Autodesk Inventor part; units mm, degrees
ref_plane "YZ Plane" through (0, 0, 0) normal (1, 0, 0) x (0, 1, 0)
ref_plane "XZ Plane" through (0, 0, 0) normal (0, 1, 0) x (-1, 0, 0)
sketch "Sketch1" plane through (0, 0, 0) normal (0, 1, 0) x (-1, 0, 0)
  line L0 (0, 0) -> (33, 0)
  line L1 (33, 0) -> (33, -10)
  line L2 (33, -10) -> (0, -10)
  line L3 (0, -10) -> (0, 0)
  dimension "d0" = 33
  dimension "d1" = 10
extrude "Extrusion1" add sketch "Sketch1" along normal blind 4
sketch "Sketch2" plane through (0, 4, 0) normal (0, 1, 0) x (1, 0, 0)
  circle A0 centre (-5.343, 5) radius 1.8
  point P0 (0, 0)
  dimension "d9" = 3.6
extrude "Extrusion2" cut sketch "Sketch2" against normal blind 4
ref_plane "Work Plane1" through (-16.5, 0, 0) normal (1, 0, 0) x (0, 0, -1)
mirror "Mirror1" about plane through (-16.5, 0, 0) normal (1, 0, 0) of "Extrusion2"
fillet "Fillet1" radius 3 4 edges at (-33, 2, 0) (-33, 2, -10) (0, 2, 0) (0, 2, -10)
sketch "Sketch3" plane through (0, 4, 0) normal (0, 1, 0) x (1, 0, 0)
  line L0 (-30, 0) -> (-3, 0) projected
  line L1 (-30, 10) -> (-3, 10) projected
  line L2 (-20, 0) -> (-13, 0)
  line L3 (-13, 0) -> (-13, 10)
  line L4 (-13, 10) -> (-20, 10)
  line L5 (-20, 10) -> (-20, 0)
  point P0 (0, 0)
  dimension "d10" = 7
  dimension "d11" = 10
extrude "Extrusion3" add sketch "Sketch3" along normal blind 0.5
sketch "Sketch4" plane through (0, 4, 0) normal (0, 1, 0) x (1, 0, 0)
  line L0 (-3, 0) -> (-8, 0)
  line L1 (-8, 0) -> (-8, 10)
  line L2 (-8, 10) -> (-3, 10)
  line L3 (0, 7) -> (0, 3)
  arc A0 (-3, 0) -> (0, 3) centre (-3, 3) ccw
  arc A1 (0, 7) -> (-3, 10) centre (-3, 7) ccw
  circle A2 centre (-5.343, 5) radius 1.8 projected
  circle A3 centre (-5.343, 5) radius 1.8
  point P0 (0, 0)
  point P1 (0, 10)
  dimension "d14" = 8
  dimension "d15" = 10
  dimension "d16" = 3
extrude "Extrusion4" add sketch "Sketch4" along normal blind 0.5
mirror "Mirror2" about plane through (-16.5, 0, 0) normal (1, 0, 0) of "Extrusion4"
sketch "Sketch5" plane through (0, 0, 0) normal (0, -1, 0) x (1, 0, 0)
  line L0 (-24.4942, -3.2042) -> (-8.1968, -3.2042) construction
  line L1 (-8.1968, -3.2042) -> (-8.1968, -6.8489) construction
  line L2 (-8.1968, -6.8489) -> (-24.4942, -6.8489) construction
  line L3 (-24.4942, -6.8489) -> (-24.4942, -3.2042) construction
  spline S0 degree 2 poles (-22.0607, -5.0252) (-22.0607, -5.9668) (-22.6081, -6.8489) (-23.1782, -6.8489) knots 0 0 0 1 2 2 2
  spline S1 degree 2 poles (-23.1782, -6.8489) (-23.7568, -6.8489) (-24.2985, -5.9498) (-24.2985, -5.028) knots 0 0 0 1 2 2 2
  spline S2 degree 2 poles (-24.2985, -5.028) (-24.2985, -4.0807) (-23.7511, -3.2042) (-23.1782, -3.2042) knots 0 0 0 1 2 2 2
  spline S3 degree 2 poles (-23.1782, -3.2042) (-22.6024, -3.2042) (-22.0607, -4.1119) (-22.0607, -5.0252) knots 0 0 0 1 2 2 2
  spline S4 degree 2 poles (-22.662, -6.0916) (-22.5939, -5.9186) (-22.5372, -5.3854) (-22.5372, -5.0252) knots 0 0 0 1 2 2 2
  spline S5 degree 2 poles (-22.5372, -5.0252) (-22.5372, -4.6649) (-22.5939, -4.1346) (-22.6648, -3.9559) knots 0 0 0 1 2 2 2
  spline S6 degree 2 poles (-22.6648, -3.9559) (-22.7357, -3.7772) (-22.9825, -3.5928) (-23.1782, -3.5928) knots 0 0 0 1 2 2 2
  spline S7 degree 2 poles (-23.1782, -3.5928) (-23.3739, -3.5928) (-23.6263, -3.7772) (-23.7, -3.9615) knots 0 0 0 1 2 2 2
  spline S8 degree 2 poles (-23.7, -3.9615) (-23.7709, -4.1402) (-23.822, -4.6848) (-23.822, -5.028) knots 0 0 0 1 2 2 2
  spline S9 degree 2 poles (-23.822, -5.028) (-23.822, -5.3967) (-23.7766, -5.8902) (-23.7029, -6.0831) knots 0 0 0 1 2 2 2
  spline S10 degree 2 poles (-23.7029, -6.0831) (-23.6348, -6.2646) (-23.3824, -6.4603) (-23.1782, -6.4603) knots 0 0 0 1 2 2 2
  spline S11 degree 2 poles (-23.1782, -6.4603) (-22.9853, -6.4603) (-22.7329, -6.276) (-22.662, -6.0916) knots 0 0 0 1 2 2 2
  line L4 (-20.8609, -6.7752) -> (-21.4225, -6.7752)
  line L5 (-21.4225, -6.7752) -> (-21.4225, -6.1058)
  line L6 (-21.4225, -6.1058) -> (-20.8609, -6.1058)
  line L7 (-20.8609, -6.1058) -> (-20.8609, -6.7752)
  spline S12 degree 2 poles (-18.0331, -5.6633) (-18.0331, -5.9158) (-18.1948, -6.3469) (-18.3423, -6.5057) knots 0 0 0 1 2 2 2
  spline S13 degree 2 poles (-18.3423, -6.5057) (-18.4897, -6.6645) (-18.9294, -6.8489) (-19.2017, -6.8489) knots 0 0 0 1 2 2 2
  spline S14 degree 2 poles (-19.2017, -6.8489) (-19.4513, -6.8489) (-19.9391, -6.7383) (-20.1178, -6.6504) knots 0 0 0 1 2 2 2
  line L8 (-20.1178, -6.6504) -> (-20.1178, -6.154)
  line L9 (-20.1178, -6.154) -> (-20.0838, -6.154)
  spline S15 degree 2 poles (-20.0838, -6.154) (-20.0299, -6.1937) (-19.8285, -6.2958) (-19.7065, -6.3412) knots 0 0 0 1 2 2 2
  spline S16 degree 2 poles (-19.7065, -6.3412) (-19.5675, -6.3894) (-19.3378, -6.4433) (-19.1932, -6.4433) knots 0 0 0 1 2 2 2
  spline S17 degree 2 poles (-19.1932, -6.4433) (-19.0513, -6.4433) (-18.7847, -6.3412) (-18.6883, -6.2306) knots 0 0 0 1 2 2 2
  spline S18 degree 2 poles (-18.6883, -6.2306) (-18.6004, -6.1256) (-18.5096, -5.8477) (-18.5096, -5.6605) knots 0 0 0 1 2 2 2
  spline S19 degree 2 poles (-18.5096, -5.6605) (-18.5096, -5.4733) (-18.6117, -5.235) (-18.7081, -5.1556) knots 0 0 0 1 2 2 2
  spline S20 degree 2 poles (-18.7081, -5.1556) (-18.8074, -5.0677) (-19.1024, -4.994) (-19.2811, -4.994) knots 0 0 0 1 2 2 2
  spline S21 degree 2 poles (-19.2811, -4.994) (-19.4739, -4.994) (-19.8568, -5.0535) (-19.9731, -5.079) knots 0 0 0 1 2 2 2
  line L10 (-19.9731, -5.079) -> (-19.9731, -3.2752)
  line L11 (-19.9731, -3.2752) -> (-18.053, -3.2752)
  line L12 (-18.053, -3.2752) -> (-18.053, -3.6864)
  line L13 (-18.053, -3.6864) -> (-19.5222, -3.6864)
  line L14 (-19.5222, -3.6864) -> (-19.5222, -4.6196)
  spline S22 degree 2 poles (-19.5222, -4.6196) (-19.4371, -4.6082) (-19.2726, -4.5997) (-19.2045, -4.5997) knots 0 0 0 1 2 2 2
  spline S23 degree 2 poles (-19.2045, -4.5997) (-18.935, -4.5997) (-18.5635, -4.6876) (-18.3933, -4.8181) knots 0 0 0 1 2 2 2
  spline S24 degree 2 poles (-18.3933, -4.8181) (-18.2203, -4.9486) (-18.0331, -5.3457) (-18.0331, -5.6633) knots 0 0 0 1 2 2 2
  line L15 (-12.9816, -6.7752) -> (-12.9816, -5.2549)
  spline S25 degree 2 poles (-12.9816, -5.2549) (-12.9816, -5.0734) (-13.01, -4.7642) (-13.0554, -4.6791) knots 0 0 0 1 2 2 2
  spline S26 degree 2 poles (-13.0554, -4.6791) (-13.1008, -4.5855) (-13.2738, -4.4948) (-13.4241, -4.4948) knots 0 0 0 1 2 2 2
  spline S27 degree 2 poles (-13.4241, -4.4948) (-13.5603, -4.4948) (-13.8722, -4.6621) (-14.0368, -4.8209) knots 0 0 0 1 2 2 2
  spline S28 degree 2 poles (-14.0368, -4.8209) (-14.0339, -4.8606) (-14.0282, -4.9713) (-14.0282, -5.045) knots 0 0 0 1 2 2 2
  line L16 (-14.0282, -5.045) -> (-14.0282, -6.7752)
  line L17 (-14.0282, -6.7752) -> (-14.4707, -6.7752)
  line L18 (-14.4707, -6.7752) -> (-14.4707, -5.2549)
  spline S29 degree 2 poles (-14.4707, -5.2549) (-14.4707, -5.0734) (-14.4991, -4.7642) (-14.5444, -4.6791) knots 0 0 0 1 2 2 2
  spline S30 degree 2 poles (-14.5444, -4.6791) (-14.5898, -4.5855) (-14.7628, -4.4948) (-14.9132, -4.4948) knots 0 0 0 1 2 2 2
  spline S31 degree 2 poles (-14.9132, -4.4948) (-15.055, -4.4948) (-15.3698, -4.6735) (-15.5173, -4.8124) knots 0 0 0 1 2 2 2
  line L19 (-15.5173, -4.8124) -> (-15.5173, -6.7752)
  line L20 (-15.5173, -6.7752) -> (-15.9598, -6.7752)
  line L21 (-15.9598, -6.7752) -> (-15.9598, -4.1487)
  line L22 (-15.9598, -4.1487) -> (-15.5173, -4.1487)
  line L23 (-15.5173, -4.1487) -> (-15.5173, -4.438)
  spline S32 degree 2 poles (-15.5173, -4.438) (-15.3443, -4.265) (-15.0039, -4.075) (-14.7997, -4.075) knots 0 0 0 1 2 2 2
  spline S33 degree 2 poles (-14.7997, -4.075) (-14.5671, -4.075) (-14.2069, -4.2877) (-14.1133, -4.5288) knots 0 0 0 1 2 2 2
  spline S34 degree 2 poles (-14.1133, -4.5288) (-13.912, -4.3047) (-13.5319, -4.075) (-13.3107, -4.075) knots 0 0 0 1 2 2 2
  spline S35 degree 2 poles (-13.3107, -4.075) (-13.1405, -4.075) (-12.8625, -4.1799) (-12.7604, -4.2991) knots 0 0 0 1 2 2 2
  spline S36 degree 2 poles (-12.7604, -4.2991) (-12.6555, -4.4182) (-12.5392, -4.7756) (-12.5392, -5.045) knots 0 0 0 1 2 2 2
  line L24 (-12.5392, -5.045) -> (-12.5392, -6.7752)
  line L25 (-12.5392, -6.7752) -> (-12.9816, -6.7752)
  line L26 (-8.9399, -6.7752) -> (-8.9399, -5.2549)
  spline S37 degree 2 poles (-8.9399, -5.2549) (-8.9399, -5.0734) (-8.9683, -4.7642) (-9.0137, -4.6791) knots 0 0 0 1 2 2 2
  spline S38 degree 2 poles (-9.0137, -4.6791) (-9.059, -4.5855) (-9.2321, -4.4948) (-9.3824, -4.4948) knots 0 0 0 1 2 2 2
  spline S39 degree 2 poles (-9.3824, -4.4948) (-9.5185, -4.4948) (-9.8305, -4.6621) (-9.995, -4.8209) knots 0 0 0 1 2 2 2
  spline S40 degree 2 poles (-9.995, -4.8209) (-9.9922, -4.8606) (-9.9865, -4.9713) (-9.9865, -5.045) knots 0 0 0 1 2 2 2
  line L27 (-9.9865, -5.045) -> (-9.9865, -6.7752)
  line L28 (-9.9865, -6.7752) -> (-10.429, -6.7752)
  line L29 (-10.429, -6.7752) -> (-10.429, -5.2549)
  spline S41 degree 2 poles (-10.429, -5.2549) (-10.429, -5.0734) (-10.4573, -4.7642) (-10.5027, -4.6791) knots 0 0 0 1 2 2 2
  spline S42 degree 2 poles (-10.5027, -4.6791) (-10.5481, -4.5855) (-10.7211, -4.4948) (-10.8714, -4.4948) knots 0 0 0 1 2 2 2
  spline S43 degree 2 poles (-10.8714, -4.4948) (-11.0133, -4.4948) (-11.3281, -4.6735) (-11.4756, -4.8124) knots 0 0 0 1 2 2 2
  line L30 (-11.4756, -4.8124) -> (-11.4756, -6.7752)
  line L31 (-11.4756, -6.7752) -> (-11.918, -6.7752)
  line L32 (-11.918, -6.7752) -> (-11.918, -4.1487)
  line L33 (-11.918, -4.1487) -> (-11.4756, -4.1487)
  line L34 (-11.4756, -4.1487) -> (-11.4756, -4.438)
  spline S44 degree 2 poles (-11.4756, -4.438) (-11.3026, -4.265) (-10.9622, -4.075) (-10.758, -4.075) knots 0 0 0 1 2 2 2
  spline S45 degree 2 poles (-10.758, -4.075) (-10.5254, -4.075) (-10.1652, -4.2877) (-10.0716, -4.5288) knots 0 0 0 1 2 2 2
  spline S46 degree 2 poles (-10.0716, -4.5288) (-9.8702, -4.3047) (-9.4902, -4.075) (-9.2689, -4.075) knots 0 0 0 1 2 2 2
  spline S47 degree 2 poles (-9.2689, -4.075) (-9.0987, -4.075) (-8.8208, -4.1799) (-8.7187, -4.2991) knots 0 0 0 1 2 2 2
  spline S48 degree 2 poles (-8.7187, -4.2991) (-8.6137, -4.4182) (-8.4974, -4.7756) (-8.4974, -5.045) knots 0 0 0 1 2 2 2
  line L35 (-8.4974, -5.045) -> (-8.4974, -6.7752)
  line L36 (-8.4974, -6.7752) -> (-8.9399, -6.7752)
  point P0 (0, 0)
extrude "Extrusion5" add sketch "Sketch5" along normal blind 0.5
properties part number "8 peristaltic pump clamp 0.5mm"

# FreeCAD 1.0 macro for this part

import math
import FreeCAD as App
import Part
import Sketcher
from FreeCAD import Vector


def edges_at(feature, points):
    """Names of the edges that pass closest to the given points."""
    edges = feature.Shape.Edges
    near = lambda p: min(range(len(edges)), key=lambda i: edges[i].distToShape(Part.Vertex(*p))[0])
    return sorted({f"Edge{near(p) + 1}" for p in points})


def add_polygon(sketch, points):
    """Adds a closed chain of lines whose ends are joined by coincident constraints."""
    first, n = sketch.GeometryCount, len(points)
    for a, b in zip(points, points[1:] + points[:1]):
        sketch.addGeometry(Part.LineSegment(App.Vector(*a, 0), App.Vector(*b, 0)), False)
    for i in range(n):
        sketch.addConstraint(Sketcher.Constraint("Coincident", first + i, 2, first + (i + 1) % n, 1))

doc = App.newDocument("Part")
body = doc.addObject("PartDesign::Body", "Body")

sketch1 = body.newObject("Sketcher::SketchObject", "Sketch")
sketch1.AttachmentSupport = (doc.getObject("XZ_Plane"), [""])
sketch1.MapMode = "FlatFace"
add_polygon(sketch1, [(-33, 0), (0, 0), (0, -10), (-33, -10)])
sketch1.addConstraint(Sketcher.Constraint("Horizontal", 0))
sketch1.addConstraint(Sketcher.Constraint("Vertical", 1))
sketch1.addConstraint(Sketcher.Constraint("Horizontal", 2))
sketch1.addConstraint(Sketcher.Constraint("Vertical", 3))
sketch1.addConstraint(Sketcher.Constraint("Coincident", 0, 2, -1, 1))
sketch1.addConstraint(Sketcher.Constraint("DistanceX", 0, 1, 0, 2, 33.0))
sketch1.addConstraint(Sketcher.Constraint("DistanceY", 1, 2, 1, 1, 10.0))
pad1 = body.newObject("PartDesign::Pad", "Pad")
pad1.Profile = sketch1
pad1.Length = 4
pad1.Reversed = True

sketch2 = body.newObject("Sketcher::SketchObject", "Sketch001")
sketch2.AttachmentSupport = (doc.getObject("XZ_Plane"), [""])
sketch2.MapMode = "FlatFace"
sketch2.AttachmentOffset = App.Placement(Vector(0, 0, -4), App.Rotation())
sketch2.addGeometry(Part.Circle(Vector(-5.343, -5, 0), Vector(0, 0, 1), 1.8), False)
sketch2.addConstraint(Sketcher.Constraint("Diameter", 0, 3.6))
sketch2.addConstraint(Sketcher.Constraint("DistanceY", 0, 3, -1, 1, 5.0))
sketch2.addConstraint(Sketcher.Constraint("DistanceX", 0, 3, -1, 1, 5.343))
pocket1 = body.newObject("PartDesign::Pocket", "Pocket")
pocket1.Profile = sketch2
pocket1.Length = 4
pocket1.Reversed = True
doc.recompute()

datumplane = body.newObject("PartDesign::Plane", "DatumPlane")
datumplane.AttachmentSupport = (doc.getObject("YZ_Plane"), [""])
datumplane.MapMode = "FlatFace"
datumplane.AttachmentOffset = App.Placement(Vector(0, 0, -16.5), App.Rotation())
mirrored = body.newObject("PartDesign::Mirrored", "Mirrored")
mirrored.Originals = [pocket1]
mirrored.MirrorPlane = (datumplane, [""])
body.Tip = mirrored
doc.recompute()

fillet = body.newObject("PartDesign::Fillet", "Fillet")
fillet.Base = (mirrored, edges_at(mirrored, [
    (-33, 2, 0),
    (-33, 2, -10),
    (0, 2, 0),
    (0, 2, -10),
]))
fillet.Radius = 3

sketch3 = body.newObject("Sketcher::SketchObject", "Sketch002")
sketch3.AttachmentSupport = (doc.getObject("XZ_Plane"), [""])
sketch3.MapMode = "FlatFace"
sketch3.AttachmentOffset = App.Placement(Vector(0, 0, -4), App.Rotation())
add_polygon(sketch3, [(-20, -10), (-20, 0), (-13, 0), (-13, -10)])
sketch3.addConstraint(Sketcher.Constraint("Vertical", 0))
sketch3.addConstraint(Sketcher.Constraint("Horizontal", 1))
sketch3.addConstraint(Sketcher.Constraint("Vertical", 2))
sketch3.addConstraint(Sketcher.Constraint("Horizontal", 3))
sketch3.addConstraint(Sketcher.Constraint("PointOnObject", 0, 2, -1))
sketch3.addConstraint(Sketcher.Constraint("DistanceX", 1, 1, 1, 2, 7.0))
sketch3.addConstraint(Sketcher.Constraint("DistanceY", 0, 1, 0, 2, 10.0))
sketch3.addConstraint(Sketcher.Constraint("DistanceX", 0, 2, -1, 1, 20.0))
pad2 = body.newObject("PartDesign::Pad", "Pad001")
pad2.Profile = sketch3
pad2.Length = 0.5
pad2.Reversed = True

sketch4 = body.newObject("Sketcher::SketchObject", "Sketch003")
sketch4.AttachmentSupport = (doc.getObject("XZ_Plane"), [""])
sketch4.MapMode = "FlatFace"
sketch4.AttachmentOffset = App.Placement(Vector(0, 0, -4), App.Rotation())
sketch4.addGeometry(Part.LineSegment(Vector(-8, 0, 0), Vector(-3, 0, 0)), False)
sketch4.addGeometry(Part.ArcOfCircle(Part.Circle(Vector(-3, -3, 0), Vector(0, 0, 1), 3), math.radians(0), math.radians(90)), False)
sketch4.addGeometry(Part.LineSegment(Vector(0, -3, 0), Vector(0, -7, 0)), False)
sketch4.addGeometry(Part.ArcOfCircle(Part.Circle(Vector(-3, -7, 0), Vector(0, 0, 1), 3), math.radians(-90), math.radians(0)), False)
sketch4.addGeometry(Part.LineSegment(Vector(-3, -10, 0), Vector(-8, -10, 0)), False)
sketch4.addGeometry(Part.LineSegment(Vector(-8, -10, 0), Vector(-8, 0, 0)), False)
sketch4.addGeometry(Part.Circle(Vector(-5.343, -5, 0), Vector(0, 0, 1), 1.8), False)
sketch4.addConstraint(Sketcher.Constraint("Tangent", 0, 2, 1, 2))
sketch4.addConstraint(Sketcher.Constraint("Tangent", 1, 1, 2, 1))
sketch4.addConstraint(Sketcher.Constraint("Tangent", 2, 2, 3, 2))
sketch4.addConstraint(Sketcher.Constraint("Tangent", 3, 1, 4, 1))
sketch4.addConstraint(Sketcher.Constraint("Coincident", 4, 2, 5, 1))
sketch4.addConstraint(Sketcher.Constraint("Coincident", 5, 2, 0, 1))
sketch4.addConstraint(Sketcher.Constraint("Horizontal", 0))
sketch4.addConstraint(Sketcher.Constraint("Vertical", 2))
sketch4.addConstraint(Sketcher.Constraint("Horizontal", 4))
sketch4.addConstraint(Sketcher.Constraint("Vertical", 5))
sketch4.addConstraint(Sketcher.Constraint("Equal", 1, 3))
sketch4.addConstraint(Sketcher.Constraint("PointOnObject", 0, 2, -1))
sketch4.addConstraint(Sketcher.Constraint("PointOnObject", 1, 1, -2))
sketch4.addConstraint(Sketcher.Constraint("Radius", 1, 3.0))
sketch4.addConstraint(Sketcher.Constraint("DistanceY", 5, 1, 5, 2, 10.0))
sketch4.addConstraint(Sketcher.Constraint("DistanceX", 4, 2, -1, 1, 8.0))
sketch4.addConstraint(Sketcher.Constraint("Diameter", 6, 3.6))
sketch4.addConstraint(Sketcher.Constraint("DistanceY", 6, 3, -1, 1, 5.0))
sketch4.addConstraint(Sketcher.Constraint("DistanceX", 6, 3, -1, 1, 5.343))
pad3 = body.newObject("PartDesign::Pad", "Pad002")
pad3.Profile = sketch4
pad3.Length = 0.5
pad3.Reversed = True
doc.recompute()

datumplane2 = body.newObject("PartDesign::Plane", "DatumPlane001")
datumplane2.AttachmentSupport = (doc.getObject("YZ_Plane"), [""])
datumplane2.MapMode = "FlatFace"
datumplane2.AttachmentOffset = App.Placement(Vector(0, 0, -16.5), App.Rotation())
mirrored2 = body.newObject("PartDesign::Mirrored", "Mirrored001")
mirrored2.Originals = [pad3]
mirrored2.MirrorPlane = (datumplane2, [""])
body.Tip = mirrored2

sketch5 = body.newObject("Sketcher::SketchObject", "Sketch004")
sketch5.AttachmentSupport = (doc.getObject("XZ_Plane"), [""])
sketch5.MapMode = "FlatFace"
sketch5.addGeometry(Part.BSplineCurve([Vector(-22.0607, -5.0252, 0), Vector(-22.0607, -5.9668, 0), Vector(-22.6081, -6.8489, 0), Vector(-23.1782, -6.8489, 0)], [3, 1, 3], [0, 1, 2], False, 2, [1, 1, 1, 1], False), False)
sketch5.addGeometry(Part.BSplineCurve([Vector(-23.1782, -3.2042, 0), Vector(-22.6024, -3.2042, 0), Vector(-22.0607, -4.1119, 0), Vector(-22.0607, -5.0252, 0)], [3, 1, 3], [0, 1, 2], False, 2, [1, 1, 1, 1], False), False)
sketch5.addGeometry(Part.BSplineCurve([Vector(-24.2985, -5.028, 0), Vector(-24.2985, -4.0807, 0), Vector(-23.7511, -3.2042, 0), Vector(-23.1782, -3.2042, 0)], [3, 1, 3], [0, 1, 2], False, 2, [1, 1, 1, 1], False), False)
sketch5.addGeometry(Part.BSplineCurve([Vector(-23.1782, -6.8489, 0), Vector(-23.7568, -6.8489, 0), Vector(-24.2985, -5.9498, 0), Vector(-24.2985, -5.028, 0)], [3, 1, 3], [0, 1, 2], False, 2, [1, 1, 1, 1], False), False)
sketch5.addGeometry(Part.BSplineCurve([Vector(-22.662, -6.0916, 0), Vector(-22.5939, -5.9186, 0), Vector(-22.5372, -5.3854, 0), Vector(-22.5372, -5.0252, 0)], [3, 1, 3], [0, 1, 2], False, 2, [1, 1, 1, 1], False), False)
sketch5.addGeometry(Part.BSplineCurve([Vector(-23.1782, -6.4603, 0), Vector(-22.9853, -6.4603, 0), Vector(-22.7329, -6.276, 0), Vector(-22.662, -6.0916, 0)], [3, 1, 3], [0, 1, 2], False, 2, [1, 1, 1, 1], False), False)
sketch5.addGeometry(Part.BSplineCurve([Vector(-23.7029, -6.0831, 0), Vector(-23.6348, -6.2646, 0), Vector(-23.3824, -6.4603, 0), Vector(-23.1782, -6.4603, 0)], [3, 1, 3], [0, 1, 2], False, 2, [1, 1, 1, 1], False), False)
sketch5.addGeometry(Part.BSplineCurve([Vector(-23.822, -5.028, 0), Vector(-23.822, -5.3967, 0), Vector(-23.7766, -5.8902, 0), Vector(-23.7029, -6.0831, 0)], [3, 1, 3], [0, 1, 2], False, 2, [1, 1, 1, 1], False), False)
sketch5.addGeometry(Part.BSplineCurve([Vector(-23.7, -3.9615, 0), Vector(-23.7709, -4.1402, 0), Vector(-23.822, -4.6848, 0), Vector(-23.822, -5.028, 0)], [3, 1, 3], [0, 1, 2], False, 2, [1, 1, 1, 1], False), False)
sketch5.addGeometry(Part.BSplineCurve([Vector(-23.1782, -3.5928, 0), Vector(-23.3739, -3.5928, 0), Vector(-23.6263, -3.7772, 0), Vector(-23.7, -3.9615, 0)], [3, 1, 3], [0, 1, 2], False, 2, [1, 1, 1, 1], False), False)
sketch5.addGeometry(Part.BSplineCurve([Vector(-22.6648, -3.9559, 0), Vector(-22.7357, -3.7772, 0), Vector(-22.9825, -3.5928, 0), Vector(-23.1782, -3.5928, 0)], [3, 1, 3], [0, 1, 2], False, 2, [1, 1, 1, 1], False), False)
sketch5.addGeometry(Part.BSplineCurve([Vector(-22.5372, -5.0252, 0), Vector(-22.5372, -4.6649, 0), Vector(-22.5939, -4.1346, 0), Vector(-22.6648, -3.9559, 0)], [3, 1, 3], [0, 1, 2], False, 2, [1, 1, 1, 1], False), False)
add_polygon(sketch5, [(-21.4225, -6.7752), (-20.8609, -6.7752), (-20.8609, -6.1058), (-21.4225, -6.1058)])
sketch5.addGeometry(Part.BSplineCurve([Vector(-18.0331, -5.6633, 0), Vector(-18.0331, -5.9158, 0), Vector(-18.1948, -6.3469, 0), Vector(-18.3423, -6.5057, 0)], [3, 1, 3], [0, 1, 2], False, 2, [1, 1, 1, 1], False), False)
sketch5.addGeometry(Part.BSplineCurve([Vector(-18.3933, -4.8181, 0), Vector(-18.2203, -4.9486, 0), Vector(-18.0331, -5.3457, 0), Vector(-18.0331, -5.6633, 0)], [3, 1, 3], [0, 1, 2], False, 2, [1, 1, 1, 1], False), False)
sketch5.addGeometry(Part.BSplineCurve([Vector(-19.2045, -4.5997, 0), Vector(-18.935, -4.5997, 0), Vector(-18.5635, -4.6876, 0), Vector(-18.3933, -4.8181, 0)], [3, 1, 3], [0, 1, 2], False, 2, [1, 1, 1, 1], False), False)
sketch5.addGeometry(Part.BSplineCurve([Vector(-19.5222, -4.6196, 0), Vector(-19.4371, -4.6082, 0), Vector(-19.2726, -4.5997, 0), Vector(-19.2045, -4.5997, 0)], [3, 1, 3], [0, 1, 2], False, 2, [1, 1, 1, 1], False), False)
sketch5.addGeometry(Part.LineSegment(Vector(-19.5222, -4.6196, 0), Vector(-19.5222, -3.6864, 0)), False)
sketch5.addGeometry(Part.LineSegment(Vector(-19.5222, -3.6864, 0), Vector(-18.053, -3.6864, 0)), False)
sketch5.addGeometry(Part.LineSegment(Vector(-18.053, -3.6864, 0), Vector(-18.053, -3.2752, 0)), False)
sketch5.addGeometry(Part.LineSegment(Vector(-18.053, -3.2752, 0), Vector(-19.9731, -3.2752, 0)), False)
sketch5.addGeometry(Part.LineSegment(Vector(-19.9731, -3.2752, 0), Vector(-19.9731, -5.079, 0)), False)
sketch5.addGeometry(Part.BSplineCurve([Vector(-19.2811, -4.994, 0), Vector(-19.4739, -4.994, 0), Vector(-19.8568, -5.0535, 0), Vector(-19.9731, -5.079, 0)], [3, 1, 3], [0, 1, 2], False, 2, [1, 1, 1, 1], False), False)
sketch5.addGeometry(Part.BSplineCurve([Vector(-18.7081, -5.1556, 0), Vector(-18.8074, -5.0677, 0), Vector(-19.1024, -4.994, 0), Vector(-19.2811, -4.994, 0)], [3, 1, 3], [0, 1, 2], False, 2, [1, 1, 1, 1], False), False)
sketch5.addGeometry(Part.BSplineCurve([Vector(-18.5096, -5.6605, 0), Vector(-18.5096, -5.4733, 0), Vector(-18.6117, -5.235, 0), Vector(-18.7081, -5.1556, 0)], [3, 1, 3], [0, 1, 2], False, 2, [1, 1, 1, 1], False), False)
sketch5.addGeometry(Part.BSplineCurve([Vector(-18.6883, -6.2306, 0), Vector(-18.6004, -6.1256, 0), Vector(-18.5096, -5.8477, 0), Vector(-18.5096, -5.6605, 0)], [3, 1, 3], [0, 1, 2], False, 2, [1, 1, 1, 1], False), False)
sketch5.addGeometry(Part.BSplineCurve([Vector(-19.1932, -6.4433, 0), Vector(-19.0513, -6.4433, 0), Vector(-18.7847, -6.3412, 0), Vector(-18.6883, -6.2306, 0)], [3, 1, 3], [0, 1, 2], False, 2, [1, 1, 1, 1], False), False)
sketch5.addGeometry(Part.BSplineCurve([Vector(-19.7065, -6.3412, 0), Vector(-19.5675, -6.3894, 0), Vector(-19.3378, -6.4433, 0), Vector(-19.1932, -6.4433, 0)], [3, 1, 3], [0, 1, 2], False, 2, [1, 1, 1, 1], False), False)
sketch5.addGeometry(Part.BSplineCurve([Vector(-20.0838, -6.154, 0), Vector(-20.0299, -6.1937, 0), Vector(-19.8285, -6.2958, 0), Vector(-19.7065, -6.3412, 0)], [3, 1, 3], [0, 1, 2], False, 2, [1, 1, 1, 1], False), False)
sketch5.addGeometry(Part.LineSegment(Vector(-20.0838, -6.154, 0), Vector(-20.1178, -6.154, 0)), False)
sketch5.addGeometry(Part.LineSegment(Vector(-20.1178, -6.154, 0), Vector(-20.1178, -6.6504, 0)), False)
sketch5.addGeometry(Part.BSplineCurve([Vector(-19.2017, -6.8489, 0), Vector(-19.4513, -6.8489, 0), Vector(-19.9391, -6.7383, 0), Vector(-20.1178, -6.6504, 0)], [3, 1, 3], [0, 1, 2], False, 2, [1, 1, 1, 1], False), False)
sketch5.addGeometry(Part.BSplineCurve([Vector(-18.3423, -6.5057, 0), Vector(-18.4897, -6.6645, 0), Vector(-18.9294, -6.8489, 0), Vector(-19.2017, -6.8489, 0)], [3, 1, 3], [0, 1, 2], False, 2, [1, 1, 1, 1], False), False)
sketch5.addGeometry(Part.LineSegment(Vector(-12.9816, -5.2549, 0), Vector(-12.9816, -6.7752, 0)), False)
sketch5.addGeometry(Part.LineSegment(Vector(-12.9816, -6.7752, 0), Vector(-12.5392, -6.7752, 0)), False)
sketch5.addGeometry(Part.LineSegment(Vector(-12.5392, -6.7752, 0), Vector(-12.5392, -5.045, 0)), False)
sketch5.addGeometry(Part.BSplineCurve([Vector(-12.7604, -4.2991, 0), Vector(-12.6555, -4.4182, 0), Vector(-12.5392, -4.7756, 0), Vector(-12.5392, -5.045, 0)], [3, 1, 3], [0, 1, 2], False, 2, [1, 1, 1, 1], False), False)
sketch5.addGeometry(Part.BSplineCurve([Vector(-13.3107, -4.075, 0), Vector(-13.1405, -4.075, 0), Vector(-12.8625, -4.1799, 0), Vector(-12.7604, -4.2991, 0)], [3, 1, 3], [0, 1, 2], False, 2, [1, 1, 1, 1], False), False)
sketch5.addGeometry(Part.BSplineCurve([Vector(-14.1133, -4.5288, 0), Vector(-13.912, -4.3047, 0), Vector(-13.5319, -4.075, 0), Vector(-13.3107, -4.075, 0)], [3, 1, 3], [0, 1, 2], False, 2, [1, 1, 1, 1], False), False)
sketch5.addGeometry(Part.BSplineCurve([Vector(-14.7997, -4.075, 0), Vector(-14.5671, -4.075, 0), Vector(-14.2069, -4.2877, 0), Vector(-14.1133, -4.5288, 0)], [3, 1, 3], [0, 1, 2], False, 2, [1, 1, 1, 1], False), False)
sketch5.addGeometry(Part.BSplineCurve([Vector(-15.5173, -4.438, 0), Vector(-15.3443, -4.265, 0), Vector(-15.0039, -4.075, 0), Vector(-14.7997, -4.075, 0)], [3, 1, 3], [0, 1, 2], False, 2, [1, 1, 1, 1], False), False)
sketch5.addGeometry(Part.LineSegment(Vector(-15.5173, -4.438, 0), Vector(-15.5173, -4.1487, 0)), False)
sketch5.addGeometry(Part.LineSegment(Vector(-15.5173, -4.1487, 0), Vector(-15.9598, -4.1487, 0)), False)
sketch5.addGeometry(Part.LineSegment(Vector(-15.9598, -4.1487, 0), Vector(-15.9598, -6.7752, 0)), False)
sketch5.addGeometry(Part.LineSegment(Vector(-15.9598, -6.7752, 0), Vector(-15.5173, -6.7752, 0)), False)
sketch5.addGeometry(Part.LineSegment(Vector(-15.5173, -6.7752, 0), Vector(-15.5173, -4.8124, 0)), False)
sketch5.addGeometry(Part.BSplineCurve([Vector(-14.9132, -4.4948, 0), Vector(-15.055, -4.4948, 0), Vector(-15.3698, -4.6735, 0), Vector(-15.5173, -4.8124, 0)], [3, 1, 3], [0, 1, 2], False, 2, [1, 1, 1, 1], False), False)
sketch5.addGeometry(Part.BSplineCurve([Vector(-14.5444, -4.6791, 0), Vector(-14.5898, -4.5855, 0), Vector(-14.7628, -4.4948, 0), Vector(-14.9132, -4.4948, 0)], [3, 1, 3], [0, 1, 2], False, 2, [1, 1, 1, 1], False), False)
sketch5.addGeometry(Part.BSplineCurve([Vector(-14.4707, -5.2549, 0), Vector(-14.4707, -5.0734, 0), Vector(-14.4991, -4.7642, 0), Vector(-14.5444, -4.6791, 0)], [3, 1, 3], [0, 1, 2], False, 2, [1, 1, 1, 1], False), False)
sketch5.addGeometry(Part.LineSegment(Vector(-14.4707, -5.2549, 0), Vector(-14.4707, -6.7752, 0)), False)
sketch5.addGeometry(Part.LineSegment(Vector(-14.4707, -6.7752, 0), Vector(-14.0282, -6.7752, 0)), False)
sketch5.addGeometry(Part.LineSegment(Vector(-14.0282, -6.7752, 0), Vector(-14.0282, -5.045, 0)), False)
sketch5.addGeometry(Part.BSplineCurve([Vector(-14.0368, -4.8209, 0), Vector(-14.0339, -4.8606, 0), Vector(-14.0282, -4.9713, 0), Vector(-14.0282, -5.045, 0)], [3, 1, 3], [0, 1, 2], False, 2, [1, 1, 1, 1], False), False)
sketch5.addGeometry(Part.BSplineCurve([Vector(-13.4241, -4.4948, 0), Vector(-13.5603, -4.4948, 0), Vector(-13.8722, -4.6621, 0), Vector(-14.0368, -4.8209, 0)], [3, 1, 3], [0, 1, 2], False, 2, [1, 1, 1, 1], False), False)
sketch5.addGeometry(Part.BSplineCurve([Vector(-13.0554, -4.6791, 0), Vector(-13.1008, -4.5855, 0), Vector(-13.2738, -4.4948, 0), Vector(-13.4241, -4.4948, 0)], [3, 1, 3], [0, 1, 2], False, 2, [1, 1, 1, 1], False), False)
sketch5.addGeometry(Part.BSplineCurve([Vector(-12.9816, -5.2549, 0), Vector(-12.9816, -5.0734, 0), Vector(-13.01, -4.7642, 0), Vector(-13.0554, -4.6791, 0)], [3, 1, 3], [0, 1, 2], False, 2, [1, 1, 1, 1], False), False)
sketch5.addGeometry(Part.LineSegment(Vector(-8.9399, -5.2549, 0), Vector(-8.9399, -6.7752, 0)), False)
sketch5.addGeometry(Part.LineSegment(Vector(-8.9399, -6.7752, 0), Vector(-8.4974, -6.7752, 0)), False)
sketch5.addGeometry(Part.LineSegment(Vector(-8.4974, -6.7752, 0), Vector(-8.4974, -5.045, 0)), False)
sketch5.addGeometry(Part.BSplineCurve([Vector(-8.7187, -4.2991, 0), Vector(-8.6137, -4.4182, 0), Vector(-8.4974, -4.7756, 0), Vector(-8.4974, -5.045, 0)], [3, 1, 3], [0, 1, 2], False, 2, [1, 1, 1, 1], False), False)
sketch5.addGeometry(Part.BSplineCurve([Vector(-9.2689, -4.075, 0), Vector(-9.0987, -4.075, 0), Vector(-8.8208, -4.1799, 0), Vector(-8.7187, -4.2991, 0)], [3, 1, 3], [0, 1, 2], False, 2, [1, 1, 1, 1], False), False)
sketch5.addGeometry(Part.BSplineCurve([Vector(-10.0716, -4.5288, 0), Vector(-9.8702, -4.3047, 0), Vector(-9.4902, -4.075, 0), Vector(-9.2689, -4.075, 0)], [3, 1, 3], [0, 1, 2], False, 2, [1, 1, 1, 1], False), False)
sketch5.addGeometry(Part.BSplineCurve([Vector(-10.758, -4.075, 0), Vector(-10.5254, -4.075, 0), Vector(-10.1652, -4.2877, 0), Vector(-10.0716, -4.5288, 0)], [3, 1, 3], [0, 1, 2], False, 2, [1, 1, 1, 1], False), False)
sketch5.addGeometry(Part.BSplineCurve([Vector(-11.4756, -4.438, 0), Vector(-11.3026, -4.265, 0), Vector(-10.9622, -4.075, 0), Vector(-10.758, -4.075, 0)], [3, 1, 3], [0, 1, 2], False, 2, [1, 1, 1, 1], False), False)
sketch5.addGeometry(Part.LineSegment(Vector(-11.4756, -4.438, 0), Vector(-11.4756, -4.1487, 0)), False)
sketch5.addGeometry(Part.LineSegment(Vector(-11.4756, -4.1487, 0), Vector(-11.918, -4.1487, 0)), False)
sketch5.addGeometry(Part.LineSegment(Vector(-11.918, -4.1487, 0), Vector(-11.918, -6.7752, 0)), False)
sketch5.addGeometry(Part.LineSegment(Vector(-11.918, -6.7752, 0), Vector(-11.4756, -6.7752, 0)), False)
sketch5.addGeometry(Part.LineSegment(Vector(-11.4756, -6.7752, 0), Vector(-11.4756, -4.8124, 0)), False)
sketch5.addGeometry(Part.BSplineCurve([Vector(-10.8714, -4.4948, 0), Vector(-11.0133, -4.4948, 0), Vector(-11.3281, -4.6735, 0), Vector(-11.4756, -4.8124, 0)], [3, 1, 3], [0, 1, 2], False, 2, [1, 1, 1, 1], False), False)
sketch5.addGeometry(Part.BSplineCurve([Vector(-10.5027, -4.6791, 0), Vector(-10.5481, -4.5855, 0), Vector(-10.7211, -4.4948, 0), Vector(-10.8714, -4.4948, 0)], [3, 1, 3], [0, 1, 2], False, 2, [1, 1, 1, 1], False), False)
sketch5.addGeometry(Part.BSplineCurve([Vector(-10.429, -5.2549, 0), Vector(-10.429, -5.0734, 0), Vector(-10.4573, -4.7642, 0), Vector(-10.5027, -4.6791, 0)], [3, 1, 3], [0, 1, 2], False, 2, [1, 1, 1, 1], False), False)
sketch5.addGeometry(Part.LineSegment(Vector(-10.429, -5.2549, 0), Vector(-10.429, -6.7752, 0)), False)
sketch5.addGeometry(Part.LineSegment(Vector(-10.429, -6.7752, 0), Vector(-9.9865, -6.7752, 0)), False)
sketch5.addGeometry(Part.LineSegment(Vector(-9.9865, -6.7752, 0), Vector(-9.9865, -5.045, 0)), False)
sketch5.addGeometry(Part.BSplineCurve([Vector(-9.995, -4.8209, 0), Vector(-9.9922, -4.8606, 0), Vector(-9.9865, -4.9713, 0), Vector(-9.9865, -5.045, 0)], [3, 1, 3], [0, 1, 2], False, 2, [1, 1, 1, 1], False), False)
sketch5.addGeometry(Part.BSplineCurve([Vector(-9.3824, -4.4948, 0), Vector(-9.5185, -4.4948, 0), Vector(-9.8305, -4.6621, 0), Vector(-9.995, -4.8209, 0)], [3, 1, 3], [0, 1, 2], False, 2, [1, 1, 1, 1], False), False)
sketch5.addGeometry(Part.BSplineCurve([Vector(-9.0137, -4.6791, 0), Vector(-9.059, -4.5855, 0), Vector(-9.2321, -4.4948, 0), Vector(-9.3824, -4.4948, 0)], [3, 1, 3], [0, 1, 2], False, 2, [1, 1, 1, 1], False), False)
sketch5.addGeometry(Part.BSplineCurve([Vector(-8.9399, -5.2549, 0), Vector(-8.9399, -5.0734, 0), Vector(-8.9683, -4.7642, 0), Vector(-9.0137, -4.6791, 0)], [3, 1, 3], [0, 1, 2], False, 2, [1, 1, 1, 1], False), False)
sketch5.addConstraint(Sketcher.Constraint("Block", 0))
sketch5.addConstraint(Sketcher.Constraint("Block", 1))
sketch5.addConstraint(Sketcher.Constraint("Block", 2))
sketch5.addConstraint(Sketcher.Constraint("Block", 3))
sketch5.addConstraint(Sketcher.Constraint("Block", 4))
sketch5.addConstraint(Sketcher.Constraint("Block", 5))
sketch5.addConstraint(Sketcher.Constraint("Block", 6))
sketch5.addConstraint(Sketcher.Constraint("Block", 7))
sketch5.addConstraint(Sketcher.Constraint("Block", 8))
sketch5.addConstraint(Sketcher.Constraint("Block", 9))
sketch5.addConstraint(Sketcher.Constraint("Block", 10))
sketch5.addConstraint(Sketcher.Constraint("Block", 11))
sketch5.addConstraint(Sketcher.Constraint("Block", 16))
sketch5.addConstraint(Sketcher.Constraint("Block", 17))
sketch5.addConstraint(Sketcher.Constraint("Block", 18))
sketch5.addConstraint(Sketcher.Constraint("Block", 19))
sketch5.addConstraint(Sketcher.Constraint("Block", 25))
sketch5.addConstraint(Sketcher.Constraint("Block", 26))
sketch5.addConstraint(Sketcher.Constraint("Block", 27))
sketch5.addConstraint(Sketcher.Constraint("Block", 28))
sketch5.addConstraint(Sketcher.Constraint("Block", 29))
sketch5.addConstraint(Sketcher.Constraint("Block", 30))
sketch5.addConstraint(Sketcher.Constraint("Block", 31))
sketch5.addConstraint(Sketcher.Constraint("Block", 34))
sketch5.addConstraint(Sketcher.Constraint("Block", 35))
sketch5.addConstraint(Sketcher.Constraint("Block", 39))
sketch5.addConstraint(Sketcher.Constraint("Block", 40))
sketch5.addConstraint(Sketcher.Constraint("Block", 41))
sketch5.addConstraint(Sketcher.Constraint("Block", 42))
sketch5.addConstraint(Sketcher.Constraint("Block", 43))
sketch5.addConstraint(Sketcher.Constraint("Block", 49))
sketch5.addConstraint(Sketcher.Constraint("Block", 50))
sketch5.addConstraint(Sketcher.Constraint("Block", 51))
sketch5.addConstraint(Sketcher.Constraint("Block", 55))
sketch5.addConstraint(Sketcher.Constraint("Block", 56))
sketch5.addConstraint(Sketcher.Constraint("Block", 57))
sketch5.addConstraint(Sketcher.Constraint("Block", 58))
sketch5.addConstraint(Sketcher.Constraint("Block", 62))
sketch5.addConstraint(Sketcher.Constraint("Block", 63))
sketch5.addConstraint(Sketcher.Constraint("Block", 64))
sketch5.addConstraint(Sketcher.Constraint("Block", 65))
sketch5.addConstraint(Sketcher.Constraint("Block", 66))
sketch5.addConstraint(Sketcher.Constraint("Block", 72))
sketch5.addConstraint(Sketcher.Constraint("Block", 73))
sketch5.addConstraint(Sketcher.Constraint("Block", 74))
sketch5.addConstraint(Sketcher.Constraint("Block", 78))
sketch5.addConstraint(Sketcher.Constraint("Block", 79))
sketch5.addConstraint(Sketcher.Constraint("Block", 80))
sketch5.addConstraint(Sketcher.Constraint("Block", 81))
sketch5.addConstraint(Sketcher.Constraint("Coincident", 19, 1, 20, 1))
sketch5.addConstraint(Sketcher.Constraint("Coincident", 20, 2, 21, 1))
sketch5.addConstraint(Sketcher.Constraint("Coincident", 21, 2, 22, 1))
sketch5.addConstraint(Sketcher.Constraint("Coincident", 22, 2, 23, 1))
sketch5.addConstraint(Sketcher.Constraint("Coincident", 23, 2, 24, 1))
sketch5.addConstraint(Sketcher.Constraint("Coincident", 24, 2, 25, 2))
sketch5.addConstraint(Sketcher.Constraint("Coincident", 31, 1, 32, 1))
sketch5.addConstraint(Sketcher.Constraint("Coincident", 32, 2, 33, 1))
sketch5.addConstraint(Sketcher.Constraint("Coincident", 33, 2, 34, 2))
sketch5.addConstraint(Sketcher.Constraint("Coincident", 36, 2, 37, 1))
sketch5.addConstraint(Sketcher.Constraint("Coincident", 37, 2, 38, 1))
sketch5.addConstraint(Sketcher.Constraint("Coincident", 38, 2, 39, 2))
sketch5.addConstraint(Sketcher.Constraint("Coincident", 43, 1, 44, 1))
sketch5.addConstraint(Sketcher.Constraint("Coincident", 44, 2, 45, 1))
sketch5.addConstraint(Sketcher.Constraint("Coincident", 45, 2, 46, 1))
sketch5.addConstraint(Sketcher.Constraint("Coincident", 46, 2, 47, 1))
sketch5.addConstraint(Sketcher.Constraint("Coincident", 47, 2, 48, 1))
sketch5.addConstraint(Sketcher.Constraint("Coincident", 48, 2, 49, 2))
sketch5.addConstraint(Sketcher.Constraint("Coincident", 51, 1, 52, 1))
sketch5.addConstraint(Sketcher.Constraint("Coincident", 52, 2, 53, 1))
sketch5.addConstraint(Sketcher.Constraint("Coincident", 53, 2, 54, 1))
sketch5.addConstraint(Sketcher.Constraint("Coincident", 54, 2, 55, 2))
sketch5.addConstraint(Sketcher.Constraint("Coincident", 58, 1, 36, 1))
sketch5.addConstraint(Sketcher.Constraint("Coincident", 59, 2, 60, 1))
sketch5.addConstraint(Sketcher.Constraint("Coincident", 60, 2, 61, 1))
sketch5.addConstraint(Sketcher.Constraint("Coincident", 61, 2, 62, 2))
sketch5.addConstraint(Sketcher.Constraint("Coincident", 66, 1, 67, 1))
sketch5.addConstraint(Sketcher.Constraint("Coincident", 67, 2, 68, 1))
sketch5.addConstraint(Sketcher.Constraint("Coincident", 68, 2, 69, 1))
sketch5.addConstraint(Sketcher.Constraint("Coincident", 69, 2, 70, 1))
sketch5.addConstraint(Sketcher.Constraint("Coincident", 70, 2, 71, 1))
sketch5.addConstraint(Sketcher.Constraint("Coincident", 71, 2, 72, 2))
sketch5.addConstraint(Sketcher.Constraint("Coincident", 74, 1, 75, 1))
sketch5.addConstraint(Sketcher.Constraint("Coincident", 75, 2, 76, 1))
sketch5.addConstraint(Sketcher.Constraint("Coincident", 76, 2, 77, 1))
sketch5.addConstraint(Sketcher.Constraint("Coincident", 77, 2, 78, 2))
sketch5.addConstraint(Sketcher.Constraint("Coincident", 81, 1, 59, 1))
sketch5.addConstraint(Sketcher.Constraint("Horizontal", 12))
sketch5.addConstraint(Sketcher.Constraint("Vertical", 13))
sketch5.addConstraint(Sketcher.Constraint("Horizontal", 14))
sketch5.addConstraint(Sketcher.Constraint("Vertical", 15))
sketch5.addConstraint(Sketcher.Constraint("Vertical", 20))
sketch5.addConstraint(Sketcher.Constraint("Horizontal", 21))
sketch5.addConstraint(Sketcher.Constraint("Vertical", 22))
sketch5.addConstraint(Sketcher.Constraint("Horizontal", 23))
sketch5.addConstraint(Sketcher.Constraint("Vertical", 24))
sketch5.addConstraint(Sketcher.Constraint("Horizontal", 32))
sketch5.addConstraint(Sketcher.Constraint("Vertical", 33))
sketch5.addConstraint(Sketcher.Constraint("Vertical", 36))
sketch5.addConstraint(Sketcher.Constraint("Horizontal", 37))
sketch5.addConstraint(Sketcher.Constraint("Vertical", 38))
sketch5.addConstraint(Sketcher.Constraint("Vertical", 44))
sketch5.addConstraint(Sketcher.Constraint("Horizontal", 45))
sketch5.addConstraint(Sketcher.Constraint("Vertical", 46))
sketch5.addConstraint(Sketcher.Constraint("Horizontal", 47))
sketch5.addConstraint(Sketcher.Constraint("Vertical", 48))
sketch5.addConstraint(Sketcher.Constraint("Vertical", 52))
sketch5.addConstraint(Sketcher.Constraint("Horizontal", 53))
sketch5.addConstraint(Sketcher.Constraint("Vertical", 54))
sketch5.addConstraint(Sketcher.Constraint("Vertical", 59))
sketch5.addConstraint(Sketcher.Constraint("Horizontal", 60))
sketch5.addConstraint(Sketcher.Constraint("Vertical", 61))
sketch5.addConstraint(Sketcher.Constraint("Vertical", 67))
sketch5.addConstraint(Sketcher.Constraint("Horizontal", 68))
sketch5.addConstraint(Sketcher.Constraint("Vertical", 69))
sketch5.addConstraint(Sketcher.Constraint("Horizontal", 70))
sketch5.addConstraint(Sketcher.Constraint("Vertical", 71))
sketch5.addConstraint(Sketcher.Constraint("Vertical", 75))
sketch5.addConstraint(Sketcher.Constraint("Horizontal", 76))
sketch5.addConstraint(Sketcher.Constraint("Vertical", 77))
sketch5.addConstraint(Sketcher.Constraint("DistanceX", 23, 2, 23, 1, 1.92))
sketch5.addConstraint(Sketcher.Constraint("DistanceY", 12, 2, 22, 2, 3.5))
sketch5.addConstraint(Sketcher.Constraint("DistanceY", 36, 2, 22, 2, 3.5))
sketch5.addConstraint(Sketcher.Constraint("DistanceX", 12, 1, 12, 2, 0.5616))
sketch5.addConstraint(Sketcher.Constraint("DistanceX", 45, 2, 45, 1, 0.4425))
sketch5.addConstraint(Sketcher.Constraint("DistanceX", 68, 2, 68, 1, 0.4424))
sketch5.addConstraint(Sketcher.Constraint("DistanceY", 13, 1, 13, 2, 0.6694))
sketch5.addConstraint(Sketcher.Constraint("DistanceY", 20, 1, 20, 2, 0.9332))
sketch5.addConstraint(Sketcher.Constraint("DistanceY", 22, 1, 22, 2, 0.4112))
sketch5.addConstraint(Sketcher.Constraint("DistanceY", 44, 1, 44, 2, 0.2893))
sketch5.addConstraint(Sketcher.Constraint("DistanceY", 46, 2, 46, 1, 2.6265))
sketch5.addConstraint(Sketcher.Constraint("DistanceY", 52, 2, 52, 1, 1.5203))
sketch5.addConstraint(Sketcher.Constraint("DistanceY", 59, 2, 59, 1, 1.5203))
sketch5.addConstraint(Sketcher.Constraint("DistanceY", 67, 1, 67, 2, 0.2893))
sketch5.addConstraint(Sketcher.Constraint("DistanceY", 69, 2, 69, 1, 2.6265))
sketch5.addConstraint(Sketcher.Constraint("DistanceY", 75, 2, 75, 1, 1.5203))
sketch5.addConstraint(Sketcher.Constraint("DistanceX", 12, 2, -1, 1, 20.861))
pad4 = body.newObject("PartDesign::Pad", "Pad003")
pad4.Profile = sketch5
pad4.Length = 0.5

doc.recompute()
